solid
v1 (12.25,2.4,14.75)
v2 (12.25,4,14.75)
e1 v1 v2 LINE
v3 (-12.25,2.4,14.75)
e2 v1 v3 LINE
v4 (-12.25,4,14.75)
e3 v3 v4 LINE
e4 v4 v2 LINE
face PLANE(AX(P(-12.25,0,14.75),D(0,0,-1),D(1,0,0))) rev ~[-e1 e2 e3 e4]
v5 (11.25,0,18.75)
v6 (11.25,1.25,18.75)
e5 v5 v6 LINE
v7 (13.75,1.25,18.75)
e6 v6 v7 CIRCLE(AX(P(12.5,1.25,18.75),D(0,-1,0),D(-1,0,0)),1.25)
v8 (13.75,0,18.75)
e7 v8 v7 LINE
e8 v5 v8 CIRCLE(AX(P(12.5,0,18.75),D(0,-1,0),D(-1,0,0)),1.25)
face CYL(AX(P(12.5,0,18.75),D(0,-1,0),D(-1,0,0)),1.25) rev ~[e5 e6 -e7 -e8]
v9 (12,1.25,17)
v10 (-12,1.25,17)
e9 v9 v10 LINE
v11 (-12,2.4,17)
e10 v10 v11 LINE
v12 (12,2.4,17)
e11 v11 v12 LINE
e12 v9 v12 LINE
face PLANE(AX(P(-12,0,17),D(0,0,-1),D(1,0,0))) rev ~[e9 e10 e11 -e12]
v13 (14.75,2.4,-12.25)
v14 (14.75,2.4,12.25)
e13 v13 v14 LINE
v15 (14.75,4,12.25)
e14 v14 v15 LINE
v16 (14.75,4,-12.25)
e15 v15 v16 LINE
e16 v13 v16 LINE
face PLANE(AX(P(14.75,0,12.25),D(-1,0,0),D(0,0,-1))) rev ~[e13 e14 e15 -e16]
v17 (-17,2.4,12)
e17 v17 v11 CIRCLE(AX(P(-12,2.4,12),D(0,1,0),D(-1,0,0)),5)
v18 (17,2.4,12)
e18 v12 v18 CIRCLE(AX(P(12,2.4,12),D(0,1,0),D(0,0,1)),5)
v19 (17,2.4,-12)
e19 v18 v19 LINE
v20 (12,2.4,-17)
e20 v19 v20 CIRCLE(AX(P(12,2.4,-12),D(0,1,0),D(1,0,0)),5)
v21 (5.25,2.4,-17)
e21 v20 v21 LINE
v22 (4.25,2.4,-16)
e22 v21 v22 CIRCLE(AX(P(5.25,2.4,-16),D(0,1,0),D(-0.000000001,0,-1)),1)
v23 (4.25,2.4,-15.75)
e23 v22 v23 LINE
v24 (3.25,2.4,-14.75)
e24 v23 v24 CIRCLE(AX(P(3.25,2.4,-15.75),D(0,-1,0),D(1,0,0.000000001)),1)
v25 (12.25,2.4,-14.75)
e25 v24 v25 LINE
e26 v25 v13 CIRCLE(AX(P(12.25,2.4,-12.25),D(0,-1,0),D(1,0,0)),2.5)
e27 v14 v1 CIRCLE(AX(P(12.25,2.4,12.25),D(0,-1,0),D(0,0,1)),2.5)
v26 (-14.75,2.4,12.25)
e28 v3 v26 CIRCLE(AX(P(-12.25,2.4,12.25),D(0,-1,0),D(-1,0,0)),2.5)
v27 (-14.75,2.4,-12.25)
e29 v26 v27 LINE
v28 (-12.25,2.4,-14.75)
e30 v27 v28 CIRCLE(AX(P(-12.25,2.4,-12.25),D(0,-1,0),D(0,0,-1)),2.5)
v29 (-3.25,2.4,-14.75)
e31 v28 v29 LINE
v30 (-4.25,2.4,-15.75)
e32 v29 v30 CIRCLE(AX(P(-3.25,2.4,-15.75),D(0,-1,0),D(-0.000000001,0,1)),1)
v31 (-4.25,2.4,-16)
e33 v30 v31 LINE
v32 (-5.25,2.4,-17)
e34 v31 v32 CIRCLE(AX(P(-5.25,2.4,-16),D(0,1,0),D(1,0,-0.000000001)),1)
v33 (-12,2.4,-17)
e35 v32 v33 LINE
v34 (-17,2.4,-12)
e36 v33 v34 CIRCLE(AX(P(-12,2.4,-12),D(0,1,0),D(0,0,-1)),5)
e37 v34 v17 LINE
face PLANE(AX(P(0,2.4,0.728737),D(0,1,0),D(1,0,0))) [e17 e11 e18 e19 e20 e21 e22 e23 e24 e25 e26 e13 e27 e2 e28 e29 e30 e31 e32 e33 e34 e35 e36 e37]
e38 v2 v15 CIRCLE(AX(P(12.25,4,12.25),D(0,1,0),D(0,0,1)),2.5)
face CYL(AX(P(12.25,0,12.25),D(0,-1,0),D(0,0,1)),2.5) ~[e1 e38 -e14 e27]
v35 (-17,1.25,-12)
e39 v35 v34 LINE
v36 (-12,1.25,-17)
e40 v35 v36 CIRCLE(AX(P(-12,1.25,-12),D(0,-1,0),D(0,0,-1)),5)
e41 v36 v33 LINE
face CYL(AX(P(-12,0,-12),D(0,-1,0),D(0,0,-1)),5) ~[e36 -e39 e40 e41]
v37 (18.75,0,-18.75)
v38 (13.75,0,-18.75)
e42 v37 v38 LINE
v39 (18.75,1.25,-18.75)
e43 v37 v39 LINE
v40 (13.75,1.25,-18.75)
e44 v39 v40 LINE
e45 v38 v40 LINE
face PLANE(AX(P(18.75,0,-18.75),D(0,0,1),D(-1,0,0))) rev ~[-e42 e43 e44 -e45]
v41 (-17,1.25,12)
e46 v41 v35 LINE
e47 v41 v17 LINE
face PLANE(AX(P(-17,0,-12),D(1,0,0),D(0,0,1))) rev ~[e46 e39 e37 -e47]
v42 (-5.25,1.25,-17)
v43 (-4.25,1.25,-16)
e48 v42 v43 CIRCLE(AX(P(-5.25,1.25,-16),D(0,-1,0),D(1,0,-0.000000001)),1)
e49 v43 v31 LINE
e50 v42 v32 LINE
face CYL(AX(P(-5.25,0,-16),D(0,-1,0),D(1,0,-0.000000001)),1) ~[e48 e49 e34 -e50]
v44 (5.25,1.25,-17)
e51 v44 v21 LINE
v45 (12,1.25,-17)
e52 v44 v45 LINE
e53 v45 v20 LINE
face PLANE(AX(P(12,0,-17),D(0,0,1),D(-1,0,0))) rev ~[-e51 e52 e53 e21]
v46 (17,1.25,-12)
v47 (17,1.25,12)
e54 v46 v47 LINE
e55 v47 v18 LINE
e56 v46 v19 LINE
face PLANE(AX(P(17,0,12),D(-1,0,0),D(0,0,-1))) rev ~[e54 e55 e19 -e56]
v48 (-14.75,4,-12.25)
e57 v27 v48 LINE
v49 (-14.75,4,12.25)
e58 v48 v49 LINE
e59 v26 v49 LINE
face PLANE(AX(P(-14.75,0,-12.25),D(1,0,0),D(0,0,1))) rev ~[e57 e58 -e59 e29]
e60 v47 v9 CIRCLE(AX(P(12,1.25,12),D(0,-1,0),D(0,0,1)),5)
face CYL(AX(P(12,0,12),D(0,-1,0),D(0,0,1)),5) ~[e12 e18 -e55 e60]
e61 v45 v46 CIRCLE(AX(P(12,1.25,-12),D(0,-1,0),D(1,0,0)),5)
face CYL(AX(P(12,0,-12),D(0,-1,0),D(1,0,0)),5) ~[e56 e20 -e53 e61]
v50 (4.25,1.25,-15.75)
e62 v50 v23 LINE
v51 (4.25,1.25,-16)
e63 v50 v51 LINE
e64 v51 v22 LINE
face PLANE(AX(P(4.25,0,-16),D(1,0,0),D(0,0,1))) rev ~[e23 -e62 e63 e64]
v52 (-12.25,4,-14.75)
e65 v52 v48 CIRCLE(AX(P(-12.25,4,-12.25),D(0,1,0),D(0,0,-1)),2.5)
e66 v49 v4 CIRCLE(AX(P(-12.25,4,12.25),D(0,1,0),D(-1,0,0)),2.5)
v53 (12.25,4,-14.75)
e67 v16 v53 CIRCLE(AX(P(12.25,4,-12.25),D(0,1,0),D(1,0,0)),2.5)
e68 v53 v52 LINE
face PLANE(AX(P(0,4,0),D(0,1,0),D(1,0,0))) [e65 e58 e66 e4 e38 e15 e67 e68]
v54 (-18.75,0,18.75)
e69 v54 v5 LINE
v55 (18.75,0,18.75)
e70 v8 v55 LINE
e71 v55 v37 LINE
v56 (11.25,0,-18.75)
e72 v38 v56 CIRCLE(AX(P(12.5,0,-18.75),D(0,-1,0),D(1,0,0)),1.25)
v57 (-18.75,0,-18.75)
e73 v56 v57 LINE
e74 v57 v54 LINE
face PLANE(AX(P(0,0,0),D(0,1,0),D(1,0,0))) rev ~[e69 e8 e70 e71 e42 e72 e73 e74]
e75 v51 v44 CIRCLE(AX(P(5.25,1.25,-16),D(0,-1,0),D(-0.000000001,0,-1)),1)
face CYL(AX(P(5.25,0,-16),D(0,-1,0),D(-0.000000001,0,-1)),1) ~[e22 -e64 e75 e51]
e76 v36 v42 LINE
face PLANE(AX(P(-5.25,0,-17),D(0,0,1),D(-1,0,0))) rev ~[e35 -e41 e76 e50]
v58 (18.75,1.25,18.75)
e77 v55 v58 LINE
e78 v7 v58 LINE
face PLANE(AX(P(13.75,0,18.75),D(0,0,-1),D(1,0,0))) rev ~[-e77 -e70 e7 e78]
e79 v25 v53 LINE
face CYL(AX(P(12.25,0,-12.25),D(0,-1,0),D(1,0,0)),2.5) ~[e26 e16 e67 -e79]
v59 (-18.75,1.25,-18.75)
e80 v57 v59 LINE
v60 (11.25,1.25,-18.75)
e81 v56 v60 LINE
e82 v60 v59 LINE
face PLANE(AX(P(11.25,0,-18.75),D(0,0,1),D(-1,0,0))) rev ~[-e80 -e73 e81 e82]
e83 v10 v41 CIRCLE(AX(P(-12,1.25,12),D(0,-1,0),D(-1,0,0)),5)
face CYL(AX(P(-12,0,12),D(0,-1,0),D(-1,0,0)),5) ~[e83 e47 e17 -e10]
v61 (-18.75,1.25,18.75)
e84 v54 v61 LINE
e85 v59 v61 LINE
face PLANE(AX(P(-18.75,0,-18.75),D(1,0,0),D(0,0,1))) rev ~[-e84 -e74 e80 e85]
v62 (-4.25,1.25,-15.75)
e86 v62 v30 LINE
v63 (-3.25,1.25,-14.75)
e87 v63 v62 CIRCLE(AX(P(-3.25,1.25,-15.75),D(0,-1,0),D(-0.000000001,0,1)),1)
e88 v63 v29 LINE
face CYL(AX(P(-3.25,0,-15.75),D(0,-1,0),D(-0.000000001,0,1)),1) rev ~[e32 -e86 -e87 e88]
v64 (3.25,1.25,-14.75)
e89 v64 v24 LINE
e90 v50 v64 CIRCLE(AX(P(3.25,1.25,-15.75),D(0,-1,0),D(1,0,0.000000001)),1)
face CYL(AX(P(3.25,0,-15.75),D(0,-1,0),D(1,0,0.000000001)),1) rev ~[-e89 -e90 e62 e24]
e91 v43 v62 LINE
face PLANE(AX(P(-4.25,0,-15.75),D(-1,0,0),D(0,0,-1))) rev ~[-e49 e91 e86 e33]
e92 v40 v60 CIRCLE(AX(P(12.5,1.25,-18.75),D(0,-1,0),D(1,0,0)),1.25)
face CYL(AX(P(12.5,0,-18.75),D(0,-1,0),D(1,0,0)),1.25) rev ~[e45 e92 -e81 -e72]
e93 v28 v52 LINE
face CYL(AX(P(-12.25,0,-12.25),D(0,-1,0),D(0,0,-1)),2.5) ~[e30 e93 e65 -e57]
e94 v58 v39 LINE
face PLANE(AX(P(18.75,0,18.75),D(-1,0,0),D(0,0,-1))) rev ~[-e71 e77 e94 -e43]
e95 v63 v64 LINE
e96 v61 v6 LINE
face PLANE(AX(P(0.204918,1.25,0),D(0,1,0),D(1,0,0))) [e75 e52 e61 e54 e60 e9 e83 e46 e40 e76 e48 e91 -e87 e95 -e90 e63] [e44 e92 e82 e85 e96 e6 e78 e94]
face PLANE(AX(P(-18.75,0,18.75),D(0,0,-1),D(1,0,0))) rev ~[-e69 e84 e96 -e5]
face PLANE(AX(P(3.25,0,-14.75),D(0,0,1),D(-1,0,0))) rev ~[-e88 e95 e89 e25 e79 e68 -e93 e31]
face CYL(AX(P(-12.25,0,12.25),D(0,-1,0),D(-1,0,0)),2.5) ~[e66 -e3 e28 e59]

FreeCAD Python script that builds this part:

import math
import FreeCAD as App
import Part
import Sketcher
Q = App.Units.Quantity

doc = App.newDocument("Part")
body = doc.addObject("PartDesign::Body", "Body")

# Sketch on XZ plane
sketch1 = body.newObject("Sketcher::SketchObject", "Sketch")
sketch1.AttachmentSupport = (doc.getObject("XZ_Plane"), [""])
sketch1.MapMode = "FlatFace"
sketch1.addGeometry([
    Part.LineSegment(App.Vector(18.75, -18.75, 0), App.Vector(13.75, -18.75, 0)),  # 0
    Part.ArcOfCircle(Part.Circle(App.Vector(12.5, -18.75, 0), App.Vector(0, 0, 1), 1.25), math.radians(0), math.radians(180)),  # 1
    Part.LineSegment(App.Vector(11.25, -18.75, 0), App.Vector(-18.75, -18.75, 0)),  # 2
    Part.LineSegment(App.Vector(-18.75, -18.75, 0), App.Vector(-18.75, 18.75, 0)),  # 3
    Part.LineSegment(App.Vector(-18.75, 18.75, 0), App.Vector(11.25, 18.75, 0)),  # 4
    Part.ArcOfCircle(Part.Circle(App.Vector(12.5, 18.75, 0), App.Vector(0, 0, 1), 1.25), math.radians(180), math.radians(360)),  # 5
    Part.LineSegment(App.Vector(13.75, 18.75, 0), App.Vector(18.75, 18.75, 0)),  # 6
    Part.LineSegment(App.Vector(18.75, 18.75, 0), App.Vector(18.75, -18.75, 0)),  # 7
], False)
sketch1.addConstraint([
    Sketcher.Constraint("Coincident", 0, 2, 1, 1),
    Sketcher.Constraint("Coincident", 1, 2, 2, 1),
    Sketcher.Constraint("Coincident", 2, 2, 3, 1),
    Sketcher.Constraint("Coincident", 3, 2, 4, 1),
    Sketcher.Constraint("Coincident", 4, 2, 5, 1),
    Sketcher.Constraint("Coincident", 5, 2, 6, 1),
    Sketcher.Constraint("Coincident", 6, 2, 7, 1),
    Sketcher.Constraint("Coincident", 7, 2, 0, 1),
    Sketcher.Constraint("Horizontal", 0),
    Sketcher.Constraint("Horizontal", 2),
    Sketcher.Constraint("Vertical", 3),
    Sketcher.Constraint("Horizontal", 4),
    Sketcher.Constraint("Horizontal", 6),
    Sketcher.Constraint("Vertical", 7),
    Sketcher.Constraint("Equal", 1, 5),
    Sketcher.Constraint("Symmetric", 2, 2, 6, 2, -1, 1),
    Sketcher.Constraint("Symmetric", 1, 3, 5, 3, -1),
    Sketcher.Constraint("Horizontal", 1, 3, 0, 2),
    Sketcher.Constraint("Horizontal", 0, 2, 1, 2),
    Sketcher.Constraint("Horizontal", 5, 3, 3, 2),
    Sketcher.Constraint("DistanceX", 0, 2, 0, 1, Q("5 mm")),
    Sketcher.Constraint("DistanceX", 2, 2, 2, 1, Q("30 mm")),
    Sketcher.Constraint("Radius", 1, Q("1.25 mm")),
    Sketcher.Constraint("DistanceY", 3, 1, 3, 2, Q("37.5 mm")),
])
pad1 = body.newObject("PartDesign::Pad", "Pad")
pad1.Profile = sketch1
pad1.Length = 1.25
pad1.Reversed = True

# Sketch on XZ plane
sketch2 = body.newObject("Sketcher::SketchObject", "Sketch001")
sketch2.AttachmentSupport = (doc.getObject("XZ_Plane"), [""])
sketch2.MapMode = "FlatFace"
sketch2.addGeometry([
    Part.LineSegment(App.Vector(-4.25, -15.75, 0), App.Vector(-4.25, -16, 0)),  # 0
    Part.ArcOfCircle(Part.Circle(App.Vector(-5.25, -16, 0), App.Vector(0, 0, 1), 1), math.radians(-90), math.radians(0)),  # 1
    Part.LineSegment(App.Vector(-5.25, -17, 0), App.Vector(-12, -17, 0)),  # 2
    Part.ArcOfCircle(Part.Circle(App.Vector(-12, -12, 0), App.Vector(0, 0, 1), 5), math.radians(180), math.radians(270)),  # 3
    Part.LineSegment(App.Vector(-17, -12, 0), App.Vector(-17, 12, 0)),  # 4
    Part.ArcOfCircle(Part.Circle(App.Vector(-12, 12, 0), App.Vector(0, 0, 1), 5), math.radians(90), math.radians(180)),  # 5
    Part.LineSegment(App.Vector(-12, 17, 0), App.Vector(12, 17, 0)),  # 6
    Part.ArcOfCircle(Part.Circle(App.Vector(12, 12, 0), App.Vector(0, 0, 1), 5), math.radians(0), math.radians(90)),  # 7
    Part.LineSegment(App.Vector(17, 12, 0), App.Vector(17, -12, 0)),  # 8
    Part.ArcOfCircle(Part.Circle(App.Vector(12, -12, 0), App.Vector(0, 0, 1), 5), math.radians(-90), math.radians(0)),  # 9
    Part.LineSegment(App.Vector(12, -17, 0), App.Vector(5.25, -17, 0)),  # 10
    Part.ArcOfCircle(Part.Circle(App.Vector(5.25, -16, 0), App.Vector(0, 0, 1), 1), math.radians(-180), math.radians(-90)),  # 11
    Part.LineSegment(App.Vector(4.25, -16, 0), App.Vector(4.25, -15.75, 0)),  # 12
    Part.ArcOfCircle(Part.Circle(App.Vector(3.25, -15.75, 0), App.Vector(0, 0, 1), 1), math.radians(0), math.radians(90)),  # 13
    Part.LineSegment(App.Vector(3.25, -14.75, 0), App.Vector(-3.25, -14.75, 0)),  # 14
    Part.ArcOfCircle(Part.Circle(App.Vector(-3.25, -15.75, 0), App.Vector(0, 0, 1), 1), math.radians(90), math.radians(180)),  # 15
], False)
sketch2.addConstraint([
    Sketcher.Constraint("Tangent", 0, 2, 1, 2),
    Sketcher.Constraint("Tangent", 1, 1, 2, 1),
    Sketcher.Constraint("Tangent", 2, 2, 3, 2),
    Sketcher.Constraint("Tangent", 3, 1, 4, 1),
    Sketcher.Constraint("Tangent", 4, 2, 5, 2),
    Sketcher.Constraint("Tangent", 5, 1, 6, 1),
    Sketcher.Constraint("Tangent", 6, 2, 7, 2),
    Sketcher.Constraint("Tangent", 7, 1, 8, 1),
    Sketcher.Constraint("Tangent", 8, 2, 9, 2),
    Sketcher.Constraint("Tangent", 9, 1, 10, 1),
    Sketcher.Constraint("Tangent", 10, 2, 11, 2),
    Sketcher.Constraint("Tangent", 11, 1, 12, 1),
    Sketcher.Constraint("Tangent", 12, 2, 13, 1),
    Sketcher.Constraint("Tangent", 13, 2, 14, 1),
    Sketcher.Constraint("Tangent", 14, 2, 15, 1),
    Sketcher.Constraint("Tangent", 15, 2, 0, 1),
    Sketcher.Constraint("Vertical", 0),
    Sketcher.Constraint("Horizontal", 2),
    Sketcher.Constraint("Vertical", 4),
    Sketcher.Constraint("Horizontal", 6),
    Sketcher.Constraint("Vertical", 8),
    Sketcher.Constraint("Horizontal", 10),
    Sketcher.Constraint("Vertical", 12),
    Sketcher.Constraint("Horizontal", 14),
    Sketcher.Constraint("Equal", 3, 5),
    Sketcher.Constraint("Equal", 5, 7),
    Sketcher.Constraint("Equal", 7, 9),
    Sketcher.Constraint("Equal", 1, 11),
    Sketcher.Constraint("Equal", 11, 13),
    Sketcher.Constraint("Equal", 13, 15),
    Sketcher.Constraint("Symmetric", 3, 3, 7, 3, -1, 1),
    Sketcher.Constraint("Symmetric", 1, 3, 11, 3, -2),
    Sketcher.Constraint("Equal", 6, 4),
    Sketcher.Constraint("Radius", 1, Q("1 mm")),
    Sketcher.Constraint("Radius", 3, Q("5 mm")),
    Sketcher.Constraint("DistanceX", 6, 1, 6, 2, Q("24 mm")),
    Sketcher.Constraint("DistanceX", 14, 2, 14, 1, Q("6.5 mm")),
    Sketcher.Constraint("DistanceY", 0, 2, 0, 1, Q("0.25 mm")),
])
pad2 = body.newObject("PartDesign::Pad", "Pad001")
pad2.Profile = sketch2
pad2.Length = 2.4
pad2.Reversed = True

# Sketch on XZ plane
sketch3 = body.newObject("Sketcher::SketchObject", "Sketch002")
sketch3.AttachmentSupport = (doc.getObject("XZ_Plane"), [""])
sketch3.MapMode = "FlatFace"
sketch3.addGeometry([
    Part.LineSegment(App.Vector(12.25, -14.75, 0), App.Vector(-12.25, -14.75, 0)),  # 0
    Part.ArcOfCircle(Part.Circle(App.Vector(-12.25, -12.25, 0), App.Vector(0, 0, 1), 2.5), math.radians(180), math.radians(270)),  # 1
    Part.LineSegment(App.Vector(-14.75, -12.25, 0), App.Vector(-14.75, 12.25, 0)),  # 2
    Part.ArcOfCircle(Part.Circle(App.Vector(-12.25, 12.25, 0), App.Vector(0, 0, 1), 2.5), math.radians(90), math.radians(180)),  # 3
    Part.LineSegment(App.Vector(-12.25, 14.75, 0), App.Vector(12.25, 14.75, 0)),  # 4
    Part.ArcOfCircle(Part.Circle(App.Vector(12.25, 12.25, 0), App.Vector(0, 0, 1), 2.5), math.radians(0), math.radians(90)),  # 5
    Part.LineSegment(App.Vector(14.75, 12.25, 0), App.Vector(14.75, -12.25, 0)),  # 6
    Part.ArcOfCircle(Part.Circle(App.Vector(12.25, -12.25, 0), App.Vector(0, 0, 1), 2.5), math.radians(-90), math.radians(0)),  # 7
], False)
sketch3.addConstraint([
    Sketcher.Constraint("Tangent", 0, 2, 1, 2),
    Sketcher.Constraint("Tangent", 1, 1, 2, 1),
    Sketcher.Constraint("Tangent", 2, 2, 3, 2),
    Sketcher.Constraint("Tangent", 3, 1, 4, 1),
    Sketcher.Constraint("Tangent", 4, 2, 5, 2),
    Sketcher.Constraint("Tangent", 5, 1, 6, 1),
    Sketcher.Constraint("Tangent", 6, 2, 7, 2),
    Sketcher.Constraint("Tangent", 7, 1, 0, 1),
    Sketcher.Constraint("Horizontal", 0),
    Sketcher.Constraint("Vertical", 2),
    Sketcher.Constraint("Horizontal", 4),
    Sketcher.Constraint("Vertical", 6),
    Sketcher.Constraint("Equal", 1, 3),
    Sketcher.Constraint("Equal", 3, 5),
    Sketcher.Constraint("Equal", 5, 7),
    Sketcher.Constraint("Symmetric", 1, 3, 5, 3, -1, 1),
    Sketcher.Constraint("Equal", 4, 2),
    Sketcher.Constraint("Radius", 1, Q("2.5 mm")),
    Sketcher.Constraint("DistanceX", 0, 2, 0, 1, Q("24.5 mm")),
])
pad3 = body.newObject("PartDesign::Pad", "Pad002")
pad3.Profile = sketch3
pad3.Length = 4
pad3.Reversed = True

doc.recompute()
